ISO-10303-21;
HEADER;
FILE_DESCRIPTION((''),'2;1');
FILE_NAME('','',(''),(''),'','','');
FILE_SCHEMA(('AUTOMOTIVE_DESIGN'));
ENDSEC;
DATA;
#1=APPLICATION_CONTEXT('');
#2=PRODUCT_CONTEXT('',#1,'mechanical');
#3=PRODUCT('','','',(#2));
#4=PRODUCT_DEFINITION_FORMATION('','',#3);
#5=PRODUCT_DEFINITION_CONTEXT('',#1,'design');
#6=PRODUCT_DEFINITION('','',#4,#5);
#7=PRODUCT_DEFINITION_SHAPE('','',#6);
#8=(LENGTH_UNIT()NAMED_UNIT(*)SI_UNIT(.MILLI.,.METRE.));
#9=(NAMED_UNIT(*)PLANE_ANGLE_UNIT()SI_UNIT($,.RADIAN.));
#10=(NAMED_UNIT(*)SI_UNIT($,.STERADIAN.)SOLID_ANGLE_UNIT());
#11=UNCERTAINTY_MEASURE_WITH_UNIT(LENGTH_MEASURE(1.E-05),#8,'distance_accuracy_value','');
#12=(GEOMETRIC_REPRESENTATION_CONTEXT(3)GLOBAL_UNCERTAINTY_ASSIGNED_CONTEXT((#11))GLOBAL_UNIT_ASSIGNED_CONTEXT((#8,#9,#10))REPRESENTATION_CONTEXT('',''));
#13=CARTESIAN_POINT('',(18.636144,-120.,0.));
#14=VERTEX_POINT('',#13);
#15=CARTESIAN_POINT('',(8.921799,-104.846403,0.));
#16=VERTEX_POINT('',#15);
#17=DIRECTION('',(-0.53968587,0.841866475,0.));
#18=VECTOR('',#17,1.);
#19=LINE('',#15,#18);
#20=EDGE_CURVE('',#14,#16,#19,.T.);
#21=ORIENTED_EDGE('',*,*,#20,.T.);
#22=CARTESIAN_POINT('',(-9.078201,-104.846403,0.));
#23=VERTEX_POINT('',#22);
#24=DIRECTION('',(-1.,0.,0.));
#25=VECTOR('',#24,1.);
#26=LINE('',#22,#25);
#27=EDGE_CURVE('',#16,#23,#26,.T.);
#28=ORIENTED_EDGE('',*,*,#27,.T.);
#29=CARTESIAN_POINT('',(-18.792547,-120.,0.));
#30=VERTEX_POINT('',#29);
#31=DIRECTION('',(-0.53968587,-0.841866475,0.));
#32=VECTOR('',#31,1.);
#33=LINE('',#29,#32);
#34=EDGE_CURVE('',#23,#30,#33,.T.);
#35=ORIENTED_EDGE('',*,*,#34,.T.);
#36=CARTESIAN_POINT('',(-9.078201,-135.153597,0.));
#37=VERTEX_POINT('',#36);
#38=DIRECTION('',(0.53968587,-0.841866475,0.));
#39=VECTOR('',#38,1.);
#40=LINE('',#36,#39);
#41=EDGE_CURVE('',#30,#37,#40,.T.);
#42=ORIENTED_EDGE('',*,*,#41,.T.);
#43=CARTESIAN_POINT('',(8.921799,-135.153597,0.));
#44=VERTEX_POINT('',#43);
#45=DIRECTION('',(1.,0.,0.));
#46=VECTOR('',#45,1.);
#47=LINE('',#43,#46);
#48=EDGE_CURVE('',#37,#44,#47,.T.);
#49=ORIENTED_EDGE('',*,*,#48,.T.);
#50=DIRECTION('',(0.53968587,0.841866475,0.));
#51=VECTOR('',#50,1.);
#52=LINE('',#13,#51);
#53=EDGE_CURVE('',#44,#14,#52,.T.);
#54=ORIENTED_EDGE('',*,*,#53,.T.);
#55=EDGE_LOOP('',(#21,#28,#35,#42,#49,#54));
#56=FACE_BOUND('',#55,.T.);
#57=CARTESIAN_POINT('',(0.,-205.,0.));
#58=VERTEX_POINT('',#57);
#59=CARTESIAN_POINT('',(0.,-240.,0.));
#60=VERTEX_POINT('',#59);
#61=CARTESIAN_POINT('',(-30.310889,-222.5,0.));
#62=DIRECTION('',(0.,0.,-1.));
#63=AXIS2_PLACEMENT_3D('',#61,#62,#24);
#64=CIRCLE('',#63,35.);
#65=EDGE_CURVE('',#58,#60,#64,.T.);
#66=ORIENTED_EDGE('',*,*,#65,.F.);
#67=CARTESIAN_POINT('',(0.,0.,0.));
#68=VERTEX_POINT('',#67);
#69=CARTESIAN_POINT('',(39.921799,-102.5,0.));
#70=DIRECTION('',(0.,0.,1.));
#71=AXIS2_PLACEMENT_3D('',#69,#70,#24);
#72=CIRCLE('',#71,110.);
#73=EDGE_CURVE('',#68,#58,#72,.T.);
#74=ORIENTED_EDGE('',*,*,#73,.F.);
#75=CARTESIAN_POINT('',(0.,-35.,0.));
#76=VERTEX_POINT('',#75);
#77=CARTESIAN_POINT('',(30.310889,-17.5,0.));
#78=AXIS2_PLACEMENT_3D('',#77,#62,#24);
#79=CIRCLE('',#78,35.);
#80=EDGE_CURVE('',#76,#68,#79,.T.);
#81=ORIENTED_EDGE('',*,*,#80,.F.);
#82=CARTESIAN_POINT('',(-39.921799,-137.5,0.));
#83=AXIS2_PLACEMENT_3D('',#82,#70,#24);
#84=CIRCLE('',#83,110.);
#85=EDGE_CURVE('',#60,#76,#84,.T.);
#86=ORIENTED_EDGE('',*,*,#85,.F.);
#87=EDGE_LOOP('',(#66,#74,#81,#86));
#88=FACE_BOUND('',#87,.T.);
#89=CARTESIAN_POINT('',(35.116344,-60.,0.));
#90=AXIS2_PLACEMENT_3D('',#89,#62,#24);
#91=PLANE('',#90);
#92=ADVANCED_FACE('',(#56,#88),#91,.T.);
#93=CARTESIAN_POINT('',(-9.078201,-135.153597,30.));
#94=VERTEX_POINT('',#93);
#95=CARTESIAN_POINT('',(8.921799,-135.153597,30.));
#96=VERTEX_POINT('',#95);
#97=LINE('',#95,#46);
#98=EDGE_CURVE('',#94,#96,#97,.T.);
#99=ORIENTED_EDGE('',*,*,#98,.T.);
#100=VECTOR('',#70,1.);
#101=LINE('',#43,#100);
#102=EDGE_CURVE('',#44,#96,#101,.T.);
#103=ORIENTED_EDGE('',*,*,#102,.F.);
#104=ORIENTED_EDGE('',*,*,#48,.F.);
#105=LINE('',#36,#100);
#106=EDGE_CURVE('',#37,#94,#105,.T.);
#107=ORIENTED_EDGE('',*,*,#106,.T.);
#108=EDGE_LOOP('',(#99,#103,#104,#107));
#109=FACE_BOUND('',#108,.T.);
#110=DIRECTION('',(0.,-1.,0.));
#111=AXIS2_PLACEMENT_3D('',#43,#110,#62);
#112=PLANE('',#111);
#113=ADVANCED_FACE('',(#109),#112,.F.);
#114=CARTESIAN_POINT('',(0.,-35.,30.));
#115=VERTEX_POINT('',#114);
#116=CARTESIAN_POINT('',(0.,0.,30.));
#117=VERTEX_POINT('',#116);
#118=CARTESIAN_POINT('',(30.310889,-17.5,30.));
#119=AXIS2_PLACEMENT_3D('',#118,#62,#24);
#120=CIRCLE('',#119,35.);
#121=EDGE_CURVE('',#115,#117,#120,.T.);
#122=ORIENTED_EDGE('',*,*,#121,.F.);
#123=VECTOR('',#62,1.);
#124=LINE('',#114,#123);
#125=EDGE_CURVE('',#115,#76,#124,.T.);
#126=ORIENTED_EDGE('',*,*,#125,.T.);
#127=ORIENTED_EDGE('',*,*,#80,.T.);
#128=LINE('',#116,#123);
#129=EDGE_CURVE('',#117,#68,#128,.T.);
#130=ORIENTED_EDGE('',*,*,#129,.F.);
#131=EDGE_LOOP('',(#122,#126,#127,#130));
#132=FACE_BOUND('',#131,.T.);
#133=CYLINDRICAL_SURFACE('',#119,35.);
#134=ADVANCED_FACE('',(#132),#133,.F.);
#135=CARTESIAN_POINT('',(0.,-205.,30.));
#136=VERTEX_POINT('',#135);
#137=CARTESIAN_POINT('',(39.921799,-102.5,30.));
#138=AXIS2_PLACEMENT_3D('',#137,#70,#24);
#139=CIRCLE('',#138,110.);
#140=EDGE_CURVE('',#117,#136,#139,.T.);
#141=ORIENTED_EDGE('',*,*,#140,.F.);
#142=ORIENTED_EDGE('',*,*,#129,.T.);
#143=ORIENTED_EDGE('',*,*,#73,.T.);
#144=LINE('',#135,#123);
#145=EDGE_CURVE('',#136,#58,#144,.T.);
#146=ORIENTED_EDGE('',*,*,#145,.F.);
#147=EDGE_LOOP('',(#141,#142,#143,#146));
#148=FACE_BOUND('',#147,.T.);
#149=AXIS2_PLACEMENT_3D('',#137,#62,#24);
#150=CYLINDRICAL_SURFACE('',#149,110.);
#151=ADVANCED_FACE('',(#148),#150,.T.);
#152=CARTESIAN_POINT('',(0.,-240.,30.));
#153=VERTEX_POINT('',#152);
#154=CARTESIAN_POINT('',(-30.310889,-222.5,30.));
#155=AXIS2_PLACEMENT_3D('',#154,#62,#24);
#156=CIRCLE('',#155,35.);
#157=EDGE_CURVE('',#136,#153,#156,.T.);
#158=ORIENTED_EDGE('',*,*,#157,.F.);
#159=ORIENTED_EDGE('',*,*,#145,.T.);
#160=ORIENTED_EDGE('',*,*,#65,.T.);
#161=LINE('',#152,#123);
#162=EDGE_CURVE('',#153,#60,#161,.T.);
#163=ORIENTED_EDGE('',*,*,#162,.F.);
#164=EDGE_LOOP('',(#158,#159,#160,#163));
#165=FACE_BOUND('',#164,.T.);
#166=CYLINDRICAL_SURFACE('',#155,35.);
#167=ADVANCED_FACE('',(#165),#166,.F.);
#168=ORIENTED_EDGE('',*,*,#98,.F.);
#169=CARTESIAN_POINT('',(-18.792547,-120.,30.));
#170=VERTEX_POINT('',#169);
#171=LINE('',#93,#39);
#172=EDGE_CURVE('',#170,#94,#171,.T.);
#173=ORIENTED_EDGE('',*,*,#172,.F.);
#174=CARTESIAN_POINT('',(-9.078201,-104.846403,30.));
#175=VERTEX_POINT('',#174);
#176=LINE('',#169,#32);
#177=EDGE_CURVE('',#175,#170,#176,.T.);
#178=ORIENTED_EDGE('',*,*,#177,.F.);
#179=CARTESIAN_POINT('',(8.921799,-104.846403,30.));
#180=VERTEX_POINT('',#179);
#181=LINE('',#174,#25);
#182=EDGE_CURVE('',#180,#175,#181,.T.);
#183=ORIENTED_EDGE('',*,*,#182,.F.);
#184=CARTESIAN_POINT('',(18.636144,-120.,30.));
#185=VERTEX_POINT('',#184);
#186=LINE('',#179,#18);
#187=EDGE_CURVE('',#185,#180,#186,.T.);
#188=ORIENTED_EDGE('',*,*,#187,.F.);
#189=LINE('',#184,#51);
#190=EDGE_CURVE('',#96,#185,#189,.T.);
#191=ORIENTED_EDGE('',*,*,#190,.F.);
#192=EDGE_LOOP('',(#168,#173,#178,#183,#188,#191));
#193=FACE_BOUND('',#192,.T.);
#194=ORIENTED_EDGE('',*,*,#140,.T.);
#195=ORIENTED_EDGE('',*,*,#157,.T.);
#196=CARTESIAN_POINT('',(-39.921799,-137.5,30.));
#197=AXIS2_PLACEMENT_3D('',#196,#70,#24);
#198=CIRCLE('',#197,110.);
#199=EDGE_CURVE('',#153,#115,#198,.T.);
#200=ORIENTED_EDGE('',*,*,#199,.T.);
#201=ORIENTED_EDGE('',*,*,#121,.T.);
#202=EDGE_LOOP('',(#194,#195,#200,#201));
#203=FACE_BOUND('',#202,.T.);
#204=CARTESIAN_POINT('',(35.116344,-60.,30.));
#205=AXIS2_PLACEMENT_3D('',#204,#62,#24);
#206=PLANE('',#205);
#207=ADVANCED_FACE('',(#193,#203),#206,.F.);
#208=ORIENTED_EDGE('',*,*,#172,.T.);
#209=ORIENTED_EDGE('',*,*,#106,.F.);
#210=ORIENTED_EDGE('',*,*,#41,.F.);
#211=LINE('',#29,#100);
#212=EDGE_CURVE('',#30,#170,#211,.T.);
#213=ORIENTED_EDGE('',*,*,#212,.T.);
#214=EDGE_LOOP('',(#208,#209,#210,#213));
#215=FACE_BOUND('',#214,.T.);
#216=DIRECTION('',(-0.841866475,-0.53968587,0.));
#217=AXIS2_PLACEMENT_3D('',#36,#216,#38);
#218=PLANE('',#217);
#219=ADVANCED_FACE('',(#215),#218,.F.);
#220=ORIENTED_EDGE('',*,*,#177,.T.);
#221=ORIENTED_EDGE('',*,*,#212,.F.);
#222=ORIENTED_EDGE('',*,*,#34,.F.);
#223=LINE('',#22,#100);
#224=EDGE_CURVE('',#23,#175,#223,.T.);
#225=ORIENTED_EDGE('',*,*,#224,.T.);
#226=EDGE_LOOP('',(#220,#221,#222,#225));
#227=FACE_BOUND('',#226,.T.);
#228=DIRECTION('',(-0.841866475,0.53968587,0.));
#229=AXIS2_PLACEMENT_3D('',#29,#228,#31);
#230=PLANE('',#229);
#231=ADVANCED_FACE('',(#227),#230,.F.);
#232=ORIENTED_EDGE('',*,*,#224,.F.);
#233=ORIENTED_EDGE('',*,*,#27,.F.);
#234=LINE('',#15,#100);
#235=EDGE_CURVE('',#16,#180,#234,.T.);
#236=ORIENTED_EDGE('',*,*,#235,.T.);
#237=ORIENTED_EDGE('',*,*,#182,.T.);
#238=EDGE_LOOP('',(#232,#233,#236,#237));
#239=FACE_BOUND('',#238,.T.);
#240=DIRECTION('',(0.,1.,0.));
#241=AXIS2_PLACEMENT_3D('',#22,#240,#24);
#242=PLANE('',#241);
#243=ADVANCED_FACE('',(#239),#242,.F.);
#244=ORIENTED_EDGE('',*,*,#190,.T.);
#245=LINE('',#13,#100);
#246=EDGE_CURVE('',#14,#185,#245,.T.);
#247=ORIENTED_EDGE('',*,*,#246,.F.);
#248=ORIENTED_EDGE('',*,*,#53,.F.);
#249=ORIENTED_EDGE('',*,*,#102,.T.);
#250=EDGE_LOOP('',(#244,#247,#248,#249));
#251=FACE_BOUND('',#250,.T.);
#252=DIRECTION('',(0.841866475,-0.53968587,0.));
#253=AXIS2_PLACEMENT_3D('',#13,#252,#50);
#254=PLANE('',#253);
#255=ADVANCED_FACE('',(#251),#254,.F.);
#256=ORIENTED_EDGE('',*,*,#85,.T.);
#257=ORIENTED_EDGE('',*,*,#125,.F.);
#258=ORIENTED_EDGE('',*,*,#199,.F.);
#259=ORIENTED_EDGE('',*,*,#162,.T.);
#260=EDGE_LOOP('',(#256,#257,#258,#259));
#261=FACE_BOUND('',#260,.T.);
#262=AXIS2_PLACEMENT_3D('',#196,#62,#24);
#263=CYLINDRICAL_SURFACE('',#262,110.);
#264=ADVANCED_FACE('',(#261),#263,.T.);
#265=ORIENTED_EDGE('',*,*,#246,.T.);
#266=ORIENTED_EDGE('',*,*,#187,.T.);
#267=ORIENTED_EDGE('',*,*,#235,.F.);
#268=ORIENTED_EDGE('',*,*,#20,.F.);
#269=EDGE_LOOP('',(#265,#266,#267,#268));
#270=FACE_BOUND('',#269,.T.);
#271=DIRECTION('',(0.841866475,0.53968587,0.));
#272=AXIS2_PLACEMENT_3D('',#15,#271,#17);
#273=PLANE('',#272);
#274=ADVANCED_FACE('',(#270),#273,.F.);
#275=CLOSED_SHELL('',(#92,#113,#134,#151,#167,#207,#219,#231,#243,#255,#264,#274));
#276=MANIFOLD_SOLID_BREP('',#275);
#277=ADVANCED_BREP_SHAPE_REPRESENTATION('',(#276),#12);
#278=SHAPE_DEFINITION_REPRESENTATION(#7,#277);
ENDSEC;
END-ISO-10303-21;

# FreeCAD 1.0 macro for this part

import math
import FreeCAD as App
import Part
import Sketcher
Q = App.Units.Quantity


def add_polygon(sketch, points):
    """Adds a closed chain of lines whose ends are joined by coincident constraints."""
    first, n = sketch.GeometryCount, len(points)
    for a, b in zip(points, points[1:] + points[:1]):
        sketch.addGeometry(Part.LineSegment(App.Vector(*a, 0), App.Vector(*b, 0)), False)
    for i in range(n):
        sketch.addConstraint(Sketcher.Constraint("Coincident", first + i, 2, first + (i + 1) % n, 1))

doc = App.newDocument("Part")
params = doc.addObject("Spreadsheet::Sheet", "Params")
for row, (alias, value) in enumerate([
    ("sketch1_radius", "110 mm"),
    ("sketch1_radius2", "35 mm"),
    ("pad1_length", "30 mm"),
    ("sketch2_width", "18 mm"),
    ("sketch2_length", "18 mm"),
], start=1):
    params.set(f"A{row}", alias)
    params.set(f"B{row}", "=" + value)
    params.setAlias(f"B{row}", alias)

body = doc.addObject("PartDesign::Body", "Body")

# Sketch on XY plane
sketch1 = body.newObject("Sketcher::SketchObject", "Sketch")
sketch1.AttachmentSupport = (doc.getObject("XY_Plane"), [""])
sketch1.MapMode = "FlatFace"
sketch1.addGeometry([
    Part.ArcOfCircle(Part.Circle(App.Vector(40, -102, 0), App.Vector(0, 0, 1), 110), math.radians(111), math.radians(249)),
    Part.ArcOfCircle(Part.Circle(App.Vector(-30, -222, 0), App.Vector(0, 0, 1), 35), math.radians(-30), math.radians(30)),
    Part.ArcOfCircle(Part.Circle(App.Vector(-40, -138, 0), App.Vector(0, 0, 1), 110), math.radians(-69), math.radians(69)),
    Part.ArcOfCircle(Part.Circle(App.Vector(30, -18, 0), App.Vector(0, 0, 1), 35), math.radians(150), math.radians(210)),
], False)
sketch1.addConstraint([
    Sketcher.Constraint("Coincident", 0, 2, 1, 2),
    Sketcher.Constraint("Coincident", 1, 1, 2, 1),
    Sketcher.Constraint("Coincident", 2, 2, 3, 2),
    Sketcher.Constraint("Coincident", 3, 1, 0, 1),
    Sketcher.Constraint("Coincident", 3, 1, -1, 1),
    Sketcher.Constraint("Equal", 0, 2),
    Sketcher.Constraint("Equal", 1, 3),
    Sketcher.Constraint("PointOnObject", 0, 2, -2),
    Sketcher.Constraint("PointOnObject", 1, 1, -2),
    Sketcher.Constraint("PointOnObject", 2, 2, -2),
    Sketcher.Constraint("Radius", 0, Q("110 mm")),
    Sketcher.Constraint("Radius", 1, Q("35 mm")),
    Sketcher.Constraint("DistanceY", 0, 2, -1, 1, Q("205 mm")),
    Sketcher.Constraint("DistanceY", 1, 1, -1, 1, Q("240 mm")),
    Sketcher.Constraint("DistanceY", 2, 2, -1, 1, Q("35 mm")),
])
sketch1.setExpression("Constraints[10]", "Params.sketch1_radius")
sketch1.setExpression("Constraints[11]", "Params.sketch1_radius2")
pad1 = body.newObject("PartDesign::Pad", "Pad")
pad1.Profile = sketch1
pad1.setExpression("Length", "Params.pad1_length")

# Sketch on XY plane
sketch2 = body.newObject("Sketcher::SketchObject", "Sketch001")
sketch2.AttachmentSupport = (doc.getObject("XY_Plane"), [""])
sketch2.MapMode = "FlatFace"
sketch2.AttachmentOffset = App.Placement(App.Vector(0, 0, 30), App.Rotation())
add_polygon(sketch2, [(9, -105), (-9, -105), (-19, -120), (-9, -135), (9, -135), (19, -120)])  # lines 0-5
sketch2.addConstraint([
    Sketcher.Constraint("Horizontal", 0),
    Sketcher.Constraint("Horizontal", 3),
    Sketcher.Constraint("Parallel", 1, 4),
    Sketcher.Constraint("Parallel", 2, 5),
    Sketcher.Constraint("Horizontal", 1, 2, 4, 2),
    Sketcher.Constraint("Vertical", 0, 2, 2, 2),
    Sketcher.Constraint("Vertical", 3, 2, 5, 2),
    Sketcher.Constraint("DistanceX", 0, 2, 0, 1, Q("18 mm")),
    Sketcher.Constraint("Distance", 1, Q("18 mm")),
    Sketcher.Constraint("DistanceY", 1, 2, -1, 1, Q("120 mm")),
    Sketcher.Constraint("DistanceX", 0, 2, -1, 1, Q("9.078201 mm")),
    Sketcher.Constraint("DistanceX", 1, 2, 4, 2, Q("37.428691 mm")),
])
sketch2.setExpression("Constraints[13]", "Params.sketch2_width")
sketch2.setExpression("Constraints[14]", "Params.sketch2_length")
pocket1 = body.newObject("PartDesign::Pocket", "Pocket")
pocket1.Profile = sketch2
pocket1.Type = "ThroughAll"

doc.recompute()
